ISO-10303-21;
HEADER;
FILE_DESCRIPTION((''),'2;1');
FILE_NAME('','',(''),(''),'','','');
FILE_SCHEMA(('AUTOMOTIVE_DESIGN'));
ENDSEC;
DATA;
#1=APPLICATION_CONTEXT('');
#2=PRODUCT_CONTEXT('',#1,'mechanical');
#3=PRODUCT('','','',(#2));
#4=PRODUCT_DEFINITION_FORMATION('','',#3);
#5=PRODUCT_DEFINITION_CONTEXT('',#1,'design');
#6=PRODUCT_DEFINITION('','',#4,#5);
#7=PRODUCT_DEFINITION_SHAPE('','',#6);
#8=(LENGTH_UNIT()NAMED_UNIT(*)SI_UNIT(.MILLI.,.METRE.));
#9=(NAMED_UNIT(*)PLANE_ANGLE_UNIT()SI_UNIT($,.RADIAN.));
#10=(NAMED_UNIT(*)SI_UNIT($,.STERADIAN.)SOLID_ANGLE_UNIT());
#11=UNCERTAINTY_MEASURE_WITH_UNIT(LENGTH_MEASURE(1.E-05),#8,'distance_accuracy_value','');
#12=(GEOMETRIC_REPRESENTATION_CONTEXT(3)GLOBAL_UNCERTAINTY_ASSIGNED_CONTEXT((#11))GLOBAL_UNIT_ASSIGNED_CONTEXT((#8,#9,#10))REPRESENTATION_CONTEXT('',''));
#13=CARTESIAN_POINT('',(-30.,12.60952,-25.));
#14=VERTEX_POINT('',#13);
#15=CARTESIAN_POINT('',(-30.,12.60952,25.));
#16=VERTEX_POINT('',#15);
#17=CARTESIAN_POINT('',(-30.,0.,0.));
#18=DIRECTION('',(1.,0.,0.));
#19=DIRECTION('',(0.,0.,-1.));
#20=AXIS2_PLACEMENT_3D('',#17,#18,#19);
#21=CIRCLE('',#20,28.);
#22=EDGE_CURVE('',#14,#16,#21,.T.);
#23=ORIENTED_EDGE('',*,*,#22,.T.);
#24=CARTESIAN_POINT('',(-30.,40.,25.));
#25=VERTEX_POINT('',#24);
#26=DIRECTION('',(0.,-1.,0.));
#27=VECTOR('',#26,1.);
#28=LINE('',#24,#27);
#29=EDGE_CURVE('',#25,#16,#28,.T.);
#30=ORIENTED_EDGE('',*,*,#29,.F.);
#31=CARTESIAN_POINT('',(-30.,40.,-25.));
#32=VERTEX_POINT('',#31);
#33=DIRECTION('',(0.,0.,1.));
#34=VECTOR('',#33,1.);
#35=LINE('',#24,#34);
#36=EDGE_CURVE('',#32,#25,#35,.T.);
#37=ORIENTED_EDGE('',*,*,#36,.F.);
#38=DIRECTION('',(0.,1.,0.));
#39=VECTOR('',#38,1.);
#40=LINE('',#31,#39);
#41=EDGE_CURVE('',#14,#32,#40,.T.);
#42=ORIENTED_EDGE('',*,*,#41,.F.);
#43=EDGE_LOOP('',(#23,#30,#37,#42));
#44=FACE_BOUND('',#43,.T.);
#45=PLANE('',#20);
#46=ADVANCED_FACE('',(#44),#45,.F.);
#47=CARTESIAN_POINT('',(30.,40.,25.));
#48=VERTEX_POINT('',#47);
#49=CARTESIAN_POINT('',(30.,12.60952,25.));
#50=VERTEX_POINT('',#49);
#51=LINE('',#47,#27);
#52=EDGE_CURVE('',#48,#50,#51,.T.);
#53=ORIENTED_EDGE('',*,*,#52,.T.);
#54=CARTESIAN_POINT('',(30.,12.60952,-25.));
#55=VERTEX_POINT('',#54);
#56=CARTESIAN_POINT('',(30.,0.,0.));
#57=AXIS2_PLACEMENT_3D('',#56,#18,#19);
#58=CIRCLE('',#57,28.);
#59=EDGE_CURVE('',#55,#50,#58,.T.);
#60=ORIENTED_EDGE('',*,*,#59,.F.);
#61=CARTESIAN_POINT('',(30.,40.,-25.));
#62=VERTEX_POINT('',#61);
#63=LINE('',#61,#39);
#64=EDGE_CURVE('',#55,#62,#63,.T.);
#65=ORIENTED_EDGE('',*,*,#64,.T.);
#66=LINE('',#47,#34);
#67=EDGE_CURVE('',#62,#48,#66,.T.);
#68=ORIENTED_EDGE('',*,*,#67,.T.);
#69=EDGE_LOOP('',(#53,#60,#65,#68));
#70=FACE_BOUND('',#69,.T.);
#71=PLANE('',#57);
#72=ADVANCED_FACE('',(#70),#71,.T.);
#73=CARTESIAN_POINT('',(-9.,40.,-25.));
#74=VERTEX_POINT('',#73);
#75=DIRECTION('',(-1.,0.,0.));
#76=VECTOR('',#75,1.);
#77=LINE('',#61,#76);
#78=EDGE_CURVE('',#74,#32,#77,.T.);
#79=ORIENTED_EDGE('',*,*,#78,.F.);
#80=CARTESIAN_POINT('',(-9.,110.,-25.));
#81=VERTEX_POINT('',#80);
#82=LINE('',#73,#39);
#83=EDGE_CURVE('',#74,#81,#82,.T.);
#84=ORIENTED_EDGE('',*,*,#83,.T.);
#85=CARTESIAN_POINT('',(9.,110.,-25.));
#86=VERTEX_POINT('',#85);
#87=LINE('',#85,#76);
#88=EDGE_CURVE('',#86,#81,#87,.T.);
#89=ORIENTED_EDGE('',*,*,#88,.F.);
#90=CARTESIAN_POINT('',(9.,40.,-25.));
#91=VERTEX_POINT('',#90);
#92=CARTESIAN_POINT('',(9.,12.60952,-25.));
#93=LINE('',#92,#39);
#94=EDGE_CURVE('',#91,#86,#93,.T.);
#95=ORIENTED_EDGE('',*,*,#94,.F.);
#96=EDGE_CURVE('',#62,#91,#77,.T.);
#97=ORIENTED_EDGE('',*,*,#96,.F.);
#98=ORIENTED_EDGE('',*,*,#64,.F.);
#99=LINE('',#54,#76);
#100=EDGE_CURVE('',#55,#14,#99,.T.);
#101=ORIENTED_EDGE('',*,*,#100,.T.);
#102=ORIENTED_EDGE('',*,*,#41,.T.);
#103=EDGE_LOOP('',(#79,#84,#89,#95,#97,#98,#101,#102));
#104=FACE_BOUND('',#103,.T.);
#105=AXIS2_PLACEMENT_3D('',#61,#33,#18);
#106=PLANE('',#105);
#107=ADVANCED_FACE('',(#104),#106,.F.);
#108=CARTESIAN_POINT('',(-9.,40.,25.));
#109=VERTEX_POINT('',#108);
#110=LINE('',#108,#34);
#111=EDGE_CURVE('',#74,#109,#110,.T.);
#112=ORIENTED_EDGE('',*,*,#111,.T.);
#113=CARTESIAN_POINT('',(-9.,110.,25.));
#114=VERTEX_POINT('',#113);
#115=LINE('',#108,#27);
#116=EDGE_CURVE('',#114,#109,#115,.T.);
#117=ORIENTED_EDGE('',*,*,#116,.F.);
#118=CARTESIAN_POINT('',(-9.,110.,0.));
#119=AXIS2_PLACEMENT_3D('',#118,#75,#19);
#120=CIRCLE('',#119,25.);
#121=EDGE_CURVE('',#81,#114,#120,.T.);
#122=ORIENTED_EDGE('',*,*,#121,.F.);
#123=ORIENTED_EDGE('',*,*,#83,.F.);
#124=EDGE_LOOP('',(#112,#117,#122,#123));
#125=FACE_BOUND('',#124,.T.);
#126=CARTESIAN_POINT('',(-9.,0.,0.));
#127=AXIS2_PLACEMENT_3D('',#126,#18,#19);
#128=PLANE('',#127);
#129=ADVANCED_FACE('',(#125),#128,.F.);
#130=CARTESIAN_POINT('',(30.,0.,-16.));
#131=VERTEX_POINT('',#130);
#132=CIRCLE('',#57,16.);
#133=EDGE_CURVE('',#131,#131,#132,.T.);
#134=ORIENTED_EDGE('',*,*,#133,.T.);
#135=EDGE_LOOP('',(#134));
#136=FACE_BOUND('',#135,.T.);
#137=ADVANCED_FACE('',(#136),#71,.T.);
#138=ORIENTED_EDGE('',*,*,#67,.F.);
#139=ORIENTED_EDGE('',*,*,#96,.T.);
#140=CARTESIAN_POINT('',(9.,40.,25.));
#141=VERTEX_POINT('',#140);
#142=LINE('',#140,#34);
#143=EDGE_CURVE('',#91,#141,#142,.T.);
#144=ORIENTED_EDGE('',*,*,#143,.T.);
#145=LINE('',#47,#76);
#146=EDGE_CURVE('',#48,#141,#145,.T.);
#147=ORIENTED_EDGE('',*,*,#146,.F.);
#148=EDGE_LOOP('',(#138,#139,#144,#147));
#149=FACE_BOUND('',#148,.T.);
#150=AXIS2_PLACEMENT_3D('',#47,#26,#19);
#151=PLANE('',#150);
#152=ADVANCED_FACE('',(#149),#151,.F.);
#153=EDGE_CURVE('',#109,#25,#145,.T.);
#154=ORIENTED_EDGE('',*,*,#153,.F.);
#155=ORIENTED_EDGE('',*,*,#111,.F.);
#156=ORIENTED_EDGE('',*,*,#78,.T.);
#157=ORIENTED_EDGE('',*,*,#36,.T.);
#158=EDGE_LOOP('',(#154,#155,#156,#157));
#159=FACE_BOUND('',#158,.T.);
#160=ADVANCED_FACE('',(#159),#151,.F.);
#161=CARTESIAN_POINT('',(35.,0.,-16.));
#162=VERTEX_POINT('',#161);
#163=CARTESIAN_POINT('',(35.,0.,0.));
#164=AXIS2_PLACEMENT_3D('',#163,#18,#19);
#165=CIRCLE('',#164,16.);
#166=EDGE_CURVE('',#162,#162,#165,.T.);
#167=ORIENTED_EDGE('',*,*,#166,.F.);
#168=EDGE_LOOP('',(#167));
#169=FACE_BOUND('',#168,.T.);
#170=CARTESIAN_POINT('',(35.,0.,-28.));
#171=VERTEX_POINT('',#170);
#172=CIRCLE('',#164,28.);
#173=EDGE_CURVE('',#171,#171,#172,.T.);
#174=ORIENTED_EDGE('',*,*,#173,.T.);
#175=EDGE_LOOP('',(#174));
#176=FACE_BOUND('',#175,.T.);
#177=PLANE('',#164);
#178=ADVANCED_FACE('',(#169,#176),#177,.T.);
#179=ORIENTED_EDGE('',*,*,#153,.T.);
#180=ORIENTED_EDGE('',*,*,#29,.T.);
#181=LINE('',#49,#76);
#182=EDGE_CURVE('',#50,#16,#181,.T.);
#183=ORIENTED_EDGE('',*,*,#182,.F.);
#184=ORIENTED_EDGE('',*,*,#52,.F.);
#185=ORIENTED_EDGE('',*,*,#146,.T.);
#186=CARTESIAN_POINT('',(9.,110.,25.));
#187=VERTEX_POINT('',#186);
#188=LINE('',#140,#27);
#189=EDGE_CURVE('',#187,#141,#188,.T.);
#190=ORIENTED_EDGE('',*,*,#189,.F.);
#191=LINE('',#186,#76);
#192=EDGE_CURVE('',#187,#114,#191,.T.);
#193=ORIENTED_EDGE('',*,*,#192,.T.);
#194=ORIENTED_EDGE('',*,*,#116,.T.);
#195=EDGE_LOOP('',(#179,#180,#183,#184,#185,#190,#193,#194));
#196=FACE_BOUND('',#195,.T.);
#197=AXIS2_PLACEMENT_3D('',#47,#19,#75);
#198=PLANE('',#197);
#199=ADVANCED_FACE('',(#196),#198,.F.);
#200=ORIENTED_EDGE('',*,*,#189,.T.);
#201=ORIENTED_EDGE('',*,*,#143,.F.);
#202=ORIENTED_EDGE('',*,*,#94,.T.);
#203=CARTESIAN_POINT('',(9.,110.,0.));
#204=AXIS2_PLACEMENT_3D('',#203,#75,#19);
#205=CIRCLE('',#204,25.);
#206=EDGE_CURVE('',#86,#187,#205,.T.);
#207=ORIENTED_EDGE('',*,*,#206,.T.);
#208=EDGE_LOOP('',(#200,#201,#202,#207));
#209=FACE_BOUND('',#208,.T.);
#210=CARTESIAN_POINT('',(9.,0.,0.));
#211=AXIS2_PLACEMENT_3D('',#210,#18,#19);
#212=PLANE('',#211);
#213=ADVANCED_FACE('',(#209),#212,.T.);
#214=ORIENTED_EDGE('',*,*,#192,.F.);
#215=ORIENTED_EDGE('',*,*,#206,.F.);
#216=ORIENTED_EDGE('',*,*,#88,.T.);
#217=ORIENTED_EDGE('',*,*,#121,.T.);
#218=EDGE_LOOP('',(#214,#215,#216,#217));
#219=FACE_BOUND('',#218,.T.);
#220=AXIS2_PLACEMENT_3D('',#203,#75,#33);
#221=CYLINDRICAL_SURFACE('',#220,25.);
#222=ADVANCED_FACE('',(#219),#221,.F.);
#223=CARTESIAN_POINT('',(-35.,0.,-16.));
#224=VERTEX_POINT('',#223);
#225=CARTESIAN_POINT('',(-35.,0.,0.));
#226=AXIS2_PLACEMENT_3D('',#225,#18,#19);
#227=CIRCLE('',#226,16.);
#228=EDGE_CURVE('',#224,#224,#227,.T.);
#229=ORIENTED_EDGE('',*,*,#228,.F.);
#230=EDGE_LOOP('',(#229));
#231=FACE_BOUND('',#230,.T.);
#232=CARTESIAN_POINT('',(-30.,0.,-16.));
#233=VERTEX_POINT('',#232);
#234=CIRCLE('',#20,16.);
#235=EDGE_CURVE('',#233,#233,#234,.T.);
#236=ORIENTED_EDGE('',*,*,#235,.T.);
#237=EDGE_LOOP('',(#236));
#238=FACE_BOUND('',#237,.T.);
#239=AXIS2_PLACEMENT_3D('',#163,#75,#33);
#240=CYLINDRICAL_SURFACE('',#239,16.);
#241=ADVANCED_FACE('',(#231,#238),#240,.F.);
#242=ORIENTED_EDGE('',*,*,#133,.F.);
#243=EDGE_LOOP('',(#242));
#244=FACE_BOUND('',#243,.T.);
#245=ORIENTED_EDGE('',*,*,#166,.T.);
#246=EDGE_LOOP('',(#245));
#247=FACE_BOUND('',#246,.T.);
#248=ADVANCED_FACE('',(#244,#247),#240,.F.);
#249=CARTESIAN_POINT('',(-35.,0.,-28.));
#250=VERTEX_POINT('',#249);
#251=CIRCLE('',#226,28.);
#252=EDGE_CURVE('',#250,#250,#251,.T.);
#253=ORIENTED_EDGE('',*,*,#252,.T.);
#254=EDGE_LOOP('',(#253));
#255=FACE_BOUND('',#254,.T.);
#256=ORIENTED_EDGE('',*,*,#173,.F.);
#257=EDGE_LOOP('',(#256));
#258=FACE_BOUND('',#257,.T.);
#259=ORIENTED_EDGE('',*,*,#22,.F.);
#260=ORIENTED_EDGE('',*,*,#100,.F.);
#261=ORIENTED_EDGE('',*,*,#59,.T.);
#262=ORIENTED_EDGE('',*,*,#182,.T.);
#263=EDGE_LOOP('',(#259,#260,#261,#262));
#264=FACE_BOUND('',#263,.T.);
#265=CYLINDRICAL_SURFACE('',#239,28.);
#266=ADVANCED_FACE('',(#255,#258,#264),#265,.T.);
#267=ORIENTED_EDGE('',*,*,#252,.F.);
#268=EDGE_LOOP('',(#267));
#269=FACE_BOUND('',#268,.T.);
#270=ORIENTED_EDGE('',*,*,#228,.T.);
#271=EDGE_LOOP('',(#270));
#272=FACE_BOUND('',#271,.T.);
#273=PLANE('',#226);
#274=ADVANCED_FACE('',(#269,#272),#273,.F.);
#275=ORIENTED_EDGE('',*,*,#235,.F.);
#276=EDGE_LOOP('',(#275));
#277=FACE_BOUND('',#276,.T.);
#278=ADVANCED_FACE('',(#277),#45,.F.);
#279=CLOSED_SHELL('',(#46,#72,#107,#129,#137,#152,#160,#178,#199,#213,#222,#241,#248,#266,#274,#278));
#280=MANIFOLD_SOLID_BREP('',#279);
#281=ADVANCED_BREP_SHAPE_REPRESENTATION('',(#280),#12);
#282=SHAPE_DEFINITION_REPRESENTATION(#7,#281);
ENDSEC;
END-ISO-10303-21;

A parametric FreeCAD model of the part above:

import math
import FreeCAD as App
import Part
import Sketcher

doc = App.newDocument("Part")
body = doc.addObject("PartDesign::Body", "Body")

# Sketch on YZ plane
sketch1 = body.newObject("Sketcher::SketchObject", "Sketch")
sketch1.AttachmentSupport = (doc.getObject("YZ_Plane"), [""])
sketch1.MapMode = "FlatFace"
sketch1.addGeometry(Part.Circle(App.Vector(0, 0, 0), App.Vector(0, 0, 1), 28), False)
sketch1.addGeometry(Part.Circle(App.Vector(0, 0, 0), App.Vector(0, 0, 1), 16), False)
sketch1.addConstraint(Sketcher.Constraint("Coincident", 0, 3, -1, 1))
sketch1.addConstraint(Sketcher.Constraint("Coincident", 1, 3, -1, 1))
sketch1.addConstraint(Sketcher.Constraint("Diameter", 0, 56.0))
sketch1.addConstraint(Sketcher.Constraint("Diameter", 1, 32.0))
pad1 = body.newObject("PartDesign::Pad", "Pad")
pad1.Profile = sketch1
pad1.Length = 70
pad1.Midplane = True

# Sketch on YZ plane
sketch2 = body.newObject("Sketcher::SketchObject", "Sketch001")
sketch2.AttachmentSupport = (doc.getObject("YZ_Plane"), [""])
sketch2.MapMode = "FlatFace"
sketch2.addGeometry(Part.LineSegment(App.Vector(40, -25, 0), App.Vector(40, 25, 0)), False)
sketch2.addGeometry(Part.LineSegment(App.Vector(40, 25, 0), App.Vector(13, 25, 0)), False)
sketch2.addGeometry(Part.ArcOfCircle(Part.Circle(App.Vector(0, 0, 0), App.Vector(0, 0, 1), 28), math.radians(63), math.radians(297)), False)
sketch2.addGeometry(Part.LineSegment(App.Vector(13, -25, 0), App.Vector(40, -25, 0)), False)
sketch2.addConstraint(Sketcher.Constraint("Coincident", 0, 2, 1, 1))
sketch2.addConstraint(Sketcher.Constraint("Coincident", 1, 2, 2, 1))
sketch2.addConstraint(Sketcher.Constraint("Coincident", 2, 2, 3, 1))
sketch2.addConstraint(Sketcher.Constraint("Coincident", 3, 2, 0, 1))
sketch2.addConstraint(Sketcher.Constraint("Vertical", 0))
sketch2.addConstraint(Sketcher.Constraint("Horizontal", 1))
sketch2.addConstraint(Sketcher.Constraint("Horizontal", 3))
sketch2.addConstraint(Sketcher.Constraint("Coincident", 2, 3, -1, 1))
sketch2.addConstraint(Sketcher.Constraint("Vertical", 1, 2, 2, 2))
sketch2.addConstraint(Sketcher.Constraint("Radius", 2, 28.0))
sketch2.addConstraint(Sketcher.Constraint("DistanceY", 0, 1, 0, 2, 50.0))
sketch2.addConstraint(Sketcher.Constraint("DistanceX", -1, 1, 0, 2, 40.0))
pad2 = body.newObject("PartDesign::Pad", "Pad001")
pad2.Profile = sketch2
pad2.Length = 60
pad2.Midplane = True

# Sketch on YZ plane
sketch3 = body.newObject("Sketcher::SketchObject", "Sketch002")
sketch3.AttachmentSupport = (doc.getObject("YZ_Plane"), [""])
sketch3.MapMode = "FlatFace"
sketch3.addGeometry(Part.ArcOfCircle(Part.Circle(App.Vector(110, 0, 0), App.Vector(0, 0, 1), 25), math.radians(90), math.radians(270)), False)
sketch3.addGeometry(Part.LineSegment(App.Vector(110, 25, 0), App.Vector(13, 25, 0)), False)
sketch3.addGeometry(Part.ArcOfCircle(Part.Circle(App.Vector(0, 0, 0), App.Vector(0, 0, 1), 28), math.radians(-63), math.radians(63)), False)
sketch3.addGeometry(Part.LineSegment(App.Vector(13, -25, 0), App.Vector(110, -25, 0)), False)
sketch3.addConstraint(Sketcher.Constraint("Tangent", 0, 1, 1, 1))
sketch3.addConstraint(Sketcher.Constraint("Coincident", 1, 2, 2, 2))
sketch3.addConstraint(Sketcher.Constraint("Coincident", 2, 1, 3, 1))
sketch3.addConstraint(Sketcher.Constraint("Tangent", 3, 2, 0, 2))
sketch3.addConstraint(Sketcher.Constraint("Horizontal", 1))
sketch3.addConstraint(Sketcher.Constraint("Horizontal", 3))
sketch3.addConstraint(Sketcher.Constraint("Coincident", 2, 3, -1, 1))
sketch3.addConstraint(Sketcher.Constraint("PointOnObject", 0, 3, -1))
sketch3.addConstraint(Sketcher.Constraint("Radius", 0, 25.0))
sketch3.addConstraint(Sketcher.Constraint("Radius", 2, 28.0))
sketch3.addConstraint(Sketcher.Constraint("DistanceX", -1, 1, 0, 3, 110.0))
pad3 = body.newObject("PartDesign::Pad", "Pad002")
pad3.Profile = sketch3
pad3.Length = 18
pad3.Midplane = True

doc.recompute()
